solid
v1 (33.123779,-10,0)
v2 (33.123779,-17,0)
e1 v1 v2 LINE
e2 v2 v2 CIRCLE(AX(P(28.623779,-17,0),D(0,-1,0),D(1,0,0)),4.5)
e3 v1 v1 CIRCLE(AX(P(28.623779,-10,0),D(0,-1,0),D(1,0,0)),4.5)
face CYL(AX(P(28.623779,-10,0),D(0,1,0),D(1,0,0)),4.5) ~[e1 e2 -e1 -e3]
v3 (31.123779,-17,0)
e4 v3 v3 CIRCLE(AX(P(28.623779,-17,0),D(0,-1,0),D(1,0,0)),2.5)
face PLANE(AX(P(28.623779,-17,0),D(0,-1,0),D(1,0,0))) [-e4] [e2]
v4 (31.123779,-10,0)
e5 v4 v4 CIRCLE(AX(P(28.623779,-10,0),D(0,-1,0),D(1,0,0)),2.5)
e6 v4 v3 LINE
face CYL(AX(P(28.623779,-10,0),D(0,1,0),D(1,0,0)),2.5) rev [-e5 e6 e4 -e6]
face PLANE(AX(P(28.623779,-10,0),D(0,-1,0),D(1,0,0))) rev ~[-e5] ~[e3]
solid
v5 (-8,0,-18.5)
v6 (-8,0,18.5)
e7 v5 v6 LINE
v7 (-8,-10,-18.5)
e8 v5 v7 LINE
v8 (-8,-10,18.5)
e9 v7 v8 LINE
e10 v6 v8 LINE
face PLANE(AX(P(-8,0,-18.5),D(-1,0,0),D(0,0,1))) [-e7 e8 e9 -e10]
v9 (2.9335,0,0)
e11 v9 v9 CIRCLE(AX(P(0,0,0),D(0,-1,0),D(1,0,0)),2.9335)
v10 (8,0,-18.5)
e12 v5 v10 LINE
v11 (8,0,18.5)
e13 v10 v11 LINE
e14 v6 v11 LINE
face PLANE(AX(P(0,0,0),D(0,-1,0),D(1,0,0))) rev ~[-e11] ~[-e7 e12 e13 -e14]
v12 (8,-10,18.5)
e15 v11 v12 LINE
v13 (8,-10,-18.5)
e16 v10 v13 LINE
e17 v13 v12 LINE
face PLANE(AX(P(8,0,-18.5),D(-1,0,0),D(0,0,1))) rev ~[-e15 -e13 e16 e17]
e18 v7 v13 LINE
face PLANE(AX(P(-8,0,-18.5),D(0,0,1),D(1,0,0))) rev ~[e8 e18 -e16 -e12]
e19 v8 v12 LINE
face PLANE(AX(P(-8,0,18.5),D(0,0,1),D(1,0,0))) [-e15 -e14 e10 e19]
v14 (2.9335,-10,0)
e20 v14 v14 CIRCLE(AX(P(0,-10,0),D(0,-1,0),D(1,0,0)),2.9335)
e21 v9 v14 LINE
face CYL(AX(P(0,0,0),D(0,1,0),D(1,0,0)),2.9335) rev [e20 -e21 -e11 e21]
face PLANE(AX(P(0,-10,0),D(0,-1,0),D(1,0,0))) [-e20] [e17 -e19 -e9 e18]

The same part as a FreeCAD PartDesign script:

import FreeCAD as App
import Part
import Sketcher


def add_polygon(sketch, points):
    """Adds a closed chain of lines whose ends are joined by coincident constraints."""
    first, n = sketch.GeometryCount, len(points)
    for a, b in zip(points, points[1:] + points[:1]):
        sketch.addGeometry(Part.LineSegment(App.Vector(*a, 0), App.Vector(*b, 0)), False)
    for i in range(n):
        sketch.addConstraint(Sketcher.Constraint("Coincident", first + i, 2, first + (i + 1) % n, 1))

doc = App.newDocument("Part")
params = doc.addObject("Spreadsheet::Sheet", "Params")
for row, (alias, value) in enumerate([
    ("sketch1_width", "16 mm"),
    ("sketch1_height", "37 mm"),
    ("pad1_length", "10 mm"),
    ("sketch2_diameter", "9 mm"),
    ("sketch2_diameter2", "5 mm"),
    ("pad2_length", "7 mm"),
], start=1):
    params.set(f"A{row}", alias)
    params.set(f"B{row}", "=" + value)
    params.setAlias(f"B{row}", alias)

body = doc.addObject("PartDesign::Body", "Body")

# Sketch on XZ plane
sketch1 = body.newObject("Sketcher::SketchObject", "Sketch")
sketch1.AttachmentSupport = (doc.getObject("XZ_Plane"), [""])
sketch1.MapMode = "FlatFace"
add_polygon(sketch1, [(-8, 18.5), (-8, -18.5), (8, -18.5), (8, 18.5)])  # lines 0-3
sketch1.addGeometry(Part.Circle(App.Vector(0, 0, 0), App.Vector(0, 0, 1), 2.9), False)  # 4
sketch1.addConstraint(Sketcher.Constraint("Vertical", 0))
sketch1.addConstraint(Sketcher.Constraint("Horizontal", 1))
sketch1.addConstraint(Sketcher.Constraint("Vertical", 2))
sketch1.addConstraint(Sketcher.Constraint("Horizontal", 3))
sketch1.addConstraint(Sketcher.Constraint("Coincident", 4, 3, -1, 1))
sketch1.addConstraint(Sketcher.Constraint("Symmetric", 0, 2, 2, 2, -1, 1))
sketch1.addConstraint(Sketcher.Constraint("DistanceX", 1, 1, 1, 2, 16.0))
sketch1.addConstraint(Sketcher.Constraint("DistanceY", 0, 2, 0, 1, 37.0))
sketch1.addConstraint(Sketcher.Constraint("Diameter", 4, 5.867))
sketch1.setExpression("Constraints[10]", "Params.sketch1_width")
sketch1.setExpression("Constraints[11]", "Params.sketch1_height")
pad1 = body.newObject("PartDesign::Pad", "Pad")
pad1.Profile = sketch1
pad1.setExpression("Length", "Params.pad1_length")
body2 = doc.addObject("PartDesign::Body", "Body001")

# Sketch on XZ plane
sketch2 = body2.newObject("Sketcher::SketchObject", "Sketch001")
sketch2.AttachmentSupport = (doc.getObject("XZ_Plane001"), [""])
sketch2.MapMode = "FlatFace"
sketch2.AttachmentOffset = App.Placement(App.Vector(0, 0, 10), App.Rotation())
sketch2.addGeometry(Part.Circle(App.Vector(28.6, 0, 0), App.Vector(0, 0, 1), 4.5), False)
sketch2.addGeometry(Part.Circle(App.Vector(28.6, 0, 0), App.Vector(0, 0, 1), 2.5), False)
sketch2.addConstraint(Sketcher.Constraint("Coincident", 1, 3, 0, 3))
sketch2.addConstraint(Sketcher.Constraint("PointOnObject", 0, 3, -1))
sketch2.addConstraint(Sketcher.Constraint("Diameter", 0, 9.0))
sketch2.addConstraint(Sketcher.Constraint("Diameter", 1, 5.0))
sketch2.addConstraint(Sketcher.Constraint("DistanceX", -1, 1, 0, 3, 28.623779))
sketch2.setExpression("Constraints[2]", "Params.sketch2_diameter")
sketch2.setExpression("Constraints[3]", "Params.sketch2_diameter2")
pad2 = body2.newObject("PartDesign::Pad", "Pad001")
pad2.Profile = sketch2
pad2.setExpression("Length", "Params.pad2_length")

doc.recompute()
